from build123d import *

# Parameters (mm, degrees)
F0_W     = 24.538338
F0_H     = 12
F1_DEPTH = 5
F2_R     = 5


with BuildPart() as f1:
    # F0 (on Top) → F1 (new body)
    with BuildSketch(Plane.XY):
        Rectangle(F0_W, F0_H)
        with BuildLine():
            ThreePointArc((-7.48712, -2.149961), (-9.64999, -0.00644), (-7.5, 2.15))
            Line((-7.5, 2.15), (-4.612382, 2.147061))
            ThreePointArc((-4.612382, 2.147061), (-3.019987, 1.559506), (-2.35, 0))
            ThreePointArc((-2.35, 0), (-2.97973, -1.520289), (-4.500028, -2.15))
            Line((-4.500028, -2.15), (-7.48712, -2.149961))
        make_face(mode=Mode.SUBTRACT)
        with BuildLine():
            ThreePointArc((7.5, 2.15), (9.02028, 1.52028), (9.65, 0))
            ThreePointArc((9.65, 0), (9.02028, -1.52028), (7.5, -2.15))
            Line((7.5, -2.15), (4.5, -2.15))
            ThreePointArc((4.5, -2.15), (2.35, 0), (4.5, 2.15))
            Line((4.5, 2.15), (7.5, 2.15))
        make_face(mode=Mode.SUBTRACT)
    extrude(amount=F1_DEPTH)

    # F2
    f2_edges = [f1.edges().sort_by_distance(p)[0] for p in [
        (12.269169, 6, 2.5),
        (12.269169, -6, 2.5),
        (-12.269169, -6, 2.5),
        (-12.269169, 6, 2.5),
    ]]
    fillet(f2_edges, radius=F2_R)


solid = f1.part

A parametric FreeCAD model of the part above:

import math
import FreeCAD as App
import Part
import Sketcher
Q = App.Units.Quantity


def edges_at(feature, points):
    """Names of the edges that pass closest to the given points."""
    edges = feature.Shape.Edges
    near = lambda p: min(range(len(edges)), key=lambda i: edges[i].distToShape(Part.Vertex(*p))[0])
    return sorted({f"Edge{near(p) + 1}" for p in points})


def add_polygon(sketch, points):
    """Adds a closed chain of lines whose ends are joined by coincident constraints."""
    first, n = sketch.GeometryCount, len(points)
    for a, b in zip(points, points[1:] + points[:1]):
        sketch.addGeometry(Part.LineSegment(App.Vector(*a, 0), App.Vector(*b, 0)), False)
    for i in range(n):
        sketch.addConstraint(Sketcher.Constraint("Coincident", first + i, 2, first + (i + 1) % n, 1))

doc = App.newDocument("Part")
params = doc.addObject("Spreadsheet::Sheet", "Params")
for row, (alias, value) in enumerate([
    ("sketch1_width", "3 mm"),
    ("sketch1_height", "12 mm"),
    ("sketch1_radius", "2.149999 mm"),
    ("pad1_length", "5 mm"),
    ("fillet_radius", "5 mm"),
], start=1):
    params.set(f"A{row}", alias)
    params.set(f"B{row}", "=" + value)
    params.setAlias(f"B{row}", alias)

body = doc.addObject("PartDesign::Body", "Body")

# Sketch on XY plane
sketch1 = doc.addObject("Sketcher::SketchObject", "Sketch")
body.addObject(sketch1)
sketch1.AttachmentSupport = (doc.XY_Plane, [""])
sketch1.MapMode = "FlatFace"
add_polygon(sketch1, [(-12.3, 6), (-12.3, -6), (12.3, -6), (12.3, 6)])  # lines 0-3
sketch1.addGeometry(Part.LineSegment(App.Vector(4.5, 2.1, 0), App.Vector(7.5, 2.1, 0)), False)  # 4
sketch1.addGeometry(Part.ArcOfCircle(Part.Circle(App.Vector(7.5, 0, 0), App.Vector(0, 0, 1), 2.1), math.radians(0), math.radians(90)), False)  # 5
sketch1.addGeometry(Part.ArcOfCircle(Part.Circle(App.Vector(7.5, 0, 0), App.Vector(0, 0, 1), 2.1), math.radians(-90), math.radians(0)), False)  # 6
sketch1.addGeometry(Part.LineSegment(App.Vector(7.5, -2.1, 0), App.Vector(4.5, -2.1, 0)), False)  # 7
sketch1.addGeometry(Part.ArcOfCircle(Part.Circle(App.Vector(4.5, 0, 0), App.Vector(0, 0, 1), 2.1), math.radians(90), math.radians(270)), False)  # 8
sketch1.addGeometry(Part.LineSegment(App.Vector(-4.5, -2.1, 0), App.Vector(-7.5, -2.1, 0)), False)  # 9
sketch1.addGeometry(Part.ArcOfCircle(Part.Circle(App.Vector(-7.5, 0, 0), App.Vector(0, 0, 1), 2.1), math.radians(90), math.radians(270)), False)  # 10
sketch1.addGeometry(Part.LineSegment(App.Vector(-7.5, 2.1, 0), App.Vector(-4.6, 2.1, 0)), False)  # 11
sketch1.addGeometry(Part.ArcOfCircle(Part.Circle(App.Vector(-4.5, 0, 0), App.Vector(0, 0, 1), 2.2), math.radians(0), math.radians(93)), False)  # 12
sketch1.addGeometry(Part.ArcOfCircle(Part.Circle(App.Vector(-4.5, 0, 0), App.Vector(0, 0, 1), 2.2), math.radians(-90), math.radians(0)), False)  # 13
sketch1.addConstraint([
    Sketcher.Constraint("Tangent", 4, 2, 5, 2),
    Sketcher.Constraint("Tangent", 5, 1, 6, 2),
    Sketcher.Constraint("Tangent", 6, 1, 7, 1),
    Sketcher.Constraint("Tangent", 7, 2, 8, 2),
    Sketcher.Constraint("Tangent", 8, 1, 4, 1),
    Sketcher.Constraint("Coincident", 9, 2, 10, 2),
    Sketcher.Constraint("Coincident", 10, 1, 11, 1),
    Sketcher.Constraint("Coincident", 11, 2, 12, 2),
    Sketcher.Constraint("Tangent", 12, 1, 13, 2),
    Sketcher.Constraint("Tangent", 13, 1, 9, 1),
    Sketcher.Constraint("Vertical", 0),
    Sketcher.Constraint("Horizontal", 1),
    Sketcher.Constraint("Vertical", 2),
    Sketcher.Constraint("Horizontal", 3),
    Sketcher.Constraint("Horizontal", 4),
    Sketcher.Constraint("Horizontal", 7),
    Sketcher.Constraint("Equal", 5, 6),
    Sketcher.Constraint("Equal", 8, 10),
    Sketcher.Constraint("Equal", 10, 12),
    Sketcher.Constraint("Equal", 12, 13),
    Sketcher.Constraint("Symmetric", 5, 3, 10, 3, -1, 1),
    Sketcher.Constraint("Symmetric", 8, 3, 12, 3, -1, 1),
    Sketcher.Constraint("Symmetric", 0, 2, 2, 2, -1, 1),
    Sketcher.Constraint("Symmetric", 4, 2, 10, 1, -2),
    Sketcher.Constraint("PointOnObject", 5, 1, -1),
    Sketcher.Constraint("PointOnObject", 12, 1, -1),
    Sketcher.Constraint("DistanceX", 4, 1, 4, 2, Q("3 mm")),
    Sketcher.Constraint("DistanceY", 0, 2, 0, 1, Q("12 mm")),
    Sketcher.Constraint("Radius", 5, Q("2.149999 mm")),
    Sketcher.Constraint("DistanceX", 10, 3, 8, 3, Q("12 mm")),
    Sketcher.Constraint("Distance", 11, Q("2.887619 mm")),
    Sketcher.Constraint("DistanceX", 1, 1, 1, 2, Q("24.538338 mm")),
    Sketcher.Constraint("DistanceX", 9, 2, -1, 1, Q("7.48712 mm")),
])
sketch1.setExpression("Constraints[30]", "Params.sketch1_width")
sketch1.setExpression("Constraints[31]", "Params.sketch1_height")
sketch1.setExpression("Constraints[32]", "Params.sketch1_radius")
pad1 = doc.addObject("PartDesign::Pad", "Pad")
body.addObject(pad1)
pad1.Profile = sketch1
pad1.setExpression("Length", "Params.pad1_length")
doc.recompute()

fillet = doc.addObject("PartDesign::Fillet", "Fillet")
body.addObject(fillet)
fillet.Base = (pad1, edges_at(pad1, [
    (12.269, 6, 2.5),
    (12.269, -6, 2.5),
    (-12.269, -6, 2.5),
    (-12.269, 6, 2.5),
]))
fillet.setExpression("Radius", "Params.fillet_radius")

doc.recompute()
